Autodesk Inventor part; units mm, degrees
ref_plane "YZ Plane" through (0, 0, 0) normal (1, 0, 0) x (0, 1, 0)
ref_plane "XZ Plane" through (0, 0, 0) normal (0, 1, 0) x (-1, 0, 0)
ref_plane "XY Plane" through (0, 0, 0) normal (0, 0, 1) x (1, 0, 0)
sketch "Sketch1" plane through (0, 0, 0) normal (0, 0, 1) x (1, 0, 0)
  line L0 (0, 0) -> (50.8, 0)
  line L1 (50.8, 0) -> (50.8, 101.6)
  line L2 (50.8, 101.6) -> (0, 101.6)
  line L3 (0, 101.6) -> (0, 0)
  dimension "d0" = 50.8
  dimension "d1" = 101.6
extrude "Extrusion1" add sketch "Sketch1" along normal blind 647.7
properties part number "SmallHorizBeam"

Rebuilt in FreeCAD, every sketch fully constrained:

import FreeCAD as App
import Part
import Sketcher
Q = App.Units.Quantity

doc = App.newDocument("Part")
body = doc.addObject("PartDesign::Body", "Body")

# Sketch on XY plane
sketch1 = doc.addObject("Sketcher::SketchObject", "Sketch")
body.addObject(sketch1)
sketch1.AttachmentSupport = (doc.XY_Plane, [""])
sketch1.MapMode = "FlatFace"
sketch1.addGeometry([
    Part.LineSegment(App.Vector(0, 101.6, 0), App.Vector(0, 0, 0)),
    Part.LineSegment(App.Vector(0, 0, 0), App.Vector(50.8, 0, 0)),
    Part.LineSegment(App.Vector(50.8, 0, 0), App.Vector(50.8, 101.6, 0)),
    Part.LineSegment(App.Vector(50.8, 101.6, 0), App.Vector(0, 101.6, 0)),
], False)
sketch1.addConstraint([
    Sketcher.Constraint("Coincident", 0, 2, 1, 1),
    Sketcher.Constraint("Coincident", 1, 2, 2, 1),
    Sketcher.Constraint("Coincident", 2, 2, 3, 1),
    Sketcher.Constraint("Coincident", 3, 2, 0, 1),
    Sketcher.Constraint("Vertical", 0),
    Sketcher.Constraint("Horizontal", 1),
    Sketcher.Constraint("Vertical", 2),
    Sketcher.Constraint("Horizontal", 3),
    Sketcher.Constraint("Coincident", 0, 2, -1, 1),
    Sketcher.Constraint("DistanceX", 1, 1, 1, 2, Q("2 in")),
    Sketcher.Constraint("DistanceY", 0, 2, 0, 1, Q("4 in")),
])
pad1 = doc.addObject("PartDesign::Pad", "Pad")
body.addObject(pad1)
pad1.Profile = sketch1
pad1.Length = Q("25.5 in")

doc.recompute()
